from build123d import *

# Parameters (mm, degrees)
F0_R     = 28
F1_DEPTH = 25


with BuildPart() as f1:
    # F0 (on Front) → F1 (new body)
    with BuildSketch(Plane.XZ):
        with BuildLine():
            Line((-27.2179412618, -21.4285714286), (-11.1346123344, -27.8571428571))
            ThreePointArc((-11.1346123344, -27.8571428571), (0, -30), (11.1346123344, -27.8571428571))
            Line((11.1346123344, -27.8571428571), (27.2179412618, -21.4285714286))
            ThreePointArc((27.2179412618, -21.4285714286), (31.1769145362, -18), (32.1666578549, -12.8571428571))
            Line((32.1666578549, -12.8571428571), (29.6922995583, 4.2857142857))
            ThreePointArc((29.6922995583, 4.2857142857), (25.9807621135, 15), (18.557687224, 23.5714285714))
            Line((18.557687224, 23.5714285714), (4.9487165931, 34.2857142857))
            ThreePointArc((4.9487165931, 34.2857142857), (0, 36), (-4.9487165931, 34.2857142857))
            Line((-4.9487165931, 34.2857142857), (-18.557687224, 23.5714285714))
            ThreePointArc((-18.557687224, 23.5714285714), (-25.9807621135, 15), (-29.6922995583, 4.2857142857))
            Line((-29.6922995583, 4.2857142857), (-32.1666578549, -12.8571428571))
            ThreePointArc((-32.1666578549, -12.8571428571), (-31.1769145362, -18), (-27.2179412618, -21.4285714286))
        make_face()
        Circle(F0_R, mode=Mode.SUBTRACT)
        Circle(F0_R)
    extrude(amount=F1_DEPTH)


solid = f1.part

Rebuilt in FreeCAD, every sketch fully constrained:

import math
import FreeCAD as App
import Part
import Sketcher
from FreeCAD import Vector

doc = App.newDocument("Part")
body = doc.addObject("PartDesign::Body", "Body")

sketch1 = body.newObject("Sketcher::SketchObject", "Sketch")
sketch1.AttachmentSupport = (doc.getObject("XZ_Plane"), [""])
sketch1.MapMode = "FlatFace"
sketch1.addGeometry(Part.LineSegment(Vector(-27, -21, 0), Vector(-11, -28, 0)), False)
sketch1.addGeometry(Part.ArcOfCircle(Part.Circle(Vector(0, 0, 0), Vector(0, 0, 1), 30), math.radians(-112), math.radians(-68)), False)
sketch1.addGeometry(Part.LineSegment(Vector(11, -28, 0), Vector(27, -21, 0)), False)
sketch1.addGeometry(Part.ArcOfCircle(Part.Circle(Vector(24, -14, 0), Vector(0, 0, 1), 8), math.radians(-68), math.radians(8)), False)
sketch1.addGeometry(Part.LineSegment(Vector(32, -13, 0), Vector(30, 4, 0)), False)
sketch1.addGeometry(Part.ArcOfCircle(Part.Circle(Vector(0, 0, 0), Vector(0, 0, 1), 30), math.radians(8), math.radians(52)), False)
sketch1.addGeometry(Part.LineSegment(Vector(19, 24, 0), Vector(5, 34, 0)), False)
sketch1.addGeometry(Part.ArcOfCircle(Part.Circle(Vector(0, 28, 0), Vector(0, 0, 1), 8), math.radians(52), math.radians(128)), False)
sketch1.addGeometry(Part.LineSegment(Vector(-5, 34, 0), Vector(-19, 24, 0)), False)
sketch1.addGeometry(Part.ArcOfCircle(Part.Circle(Vector(0, 0, 0), Vector(0, 0, 1), 30), math.radians(128), math.radians(172)), False)
sketch1.addGeometry(Part.LineSegment(Vector(-30, 4, 0), Vector(-32, -13, 0)), False)
sketch1.addGeometry(Part.ArcOfCircle(Part.Circle(Vector(-24, -14, 0), Vector(0, 0, 1), 8), math.radians(172), math.radians(248)), False)
sketch1.addConstraint(Sketcher.Constraint("Tangent", 0, 2, 1, 1))
sketch1.addConstraint(Sketcher.Constraint("Tangent", 1, 2, 2, 1))
sketch1.addConstraint(Sketcher.Constraint("Tangent", 2, 2, 3, 1))
sketch1.addConstraint(Sketcher.Constraint("Tangent", 3, 2, 4, 1))
sketch1.addConstraint(Sketcher.Constraint("Tangent", 4, 2, 5, 1))
sketch1.addConstraint(Sketcher.Constraint("Tangent", 5, 2, 6, 1))
sketch1.addConstraint(Sketcher.Constraint("Tangent", 6, 2, 7, 1))
sketch1.addConstraint(Sketcher.Constraint("Tangent", 7, 2, 8, 1))
sketch1.addConstraint(Sketcher.Constraint("Tangent", 8, 2, 9, 1))
sketch1.addConstraint(Sketcher.Constraint("Tangent", 9, 2, 10, 1))
sketch1.addConstraint(Sketcher.Constraint("Tangent", 10, 2, 11, 1))
sketch1.addConstraint(Sketcher.Constraint("Tangent", 11, 2, 0, 1))
sketch1.addConstraint(Sketcher.Constraint("Coincident", 1, 3, -1, 1))
sketch1.addConstraint(Sketcher.Constraint("Coincident", 5, 3, -1, 1))
sketch1.addConstraint(Sketcher.Constraint("Coincident", 9, 3, -1, 1))
sketch1.addConstraint(Sketcher.Constraint("Equal", 1, 5))
sketch1.addConstraint(Sketcher.Constraint("Equal", 3, 7))
sketch1.addConstraint(Sketcher.Constraint("Equal", 5, 9))
sketch1.addConstraint(Sketcher.Constraint("Equal", 7, 11))
sketch1.addConstraint(Sketcher.Constraint("Symmetric", 3, 3, 11, 3, -2))
sketch1.addConstraint(Sketcher.Constraint("PointOnObject", 7, 3, -2))
sketch1.addConstraint(Sketcher.Constraint("Equal", 4, 6))
sketch1.addConstraint(Sketcher.Constraint("Radius", 1, 30.0))
sketch1.addConstraint(Sketcher.Constraint("Radius", 3, 8.0))
sketch1.addConstraint(Sketcher.Constraint("DistanceY", 3, 3, -1, 1, 14.0))
sketch1.addConstraint(Sketcher.Constraint("DistanceY", -1, 1, 7, 3, 28.0))
pad1 = body.newObject("PartDesign::Pad", "Pad")
pad1.Profile = sketch1
pad1.Length = 25

doc.recompute()
